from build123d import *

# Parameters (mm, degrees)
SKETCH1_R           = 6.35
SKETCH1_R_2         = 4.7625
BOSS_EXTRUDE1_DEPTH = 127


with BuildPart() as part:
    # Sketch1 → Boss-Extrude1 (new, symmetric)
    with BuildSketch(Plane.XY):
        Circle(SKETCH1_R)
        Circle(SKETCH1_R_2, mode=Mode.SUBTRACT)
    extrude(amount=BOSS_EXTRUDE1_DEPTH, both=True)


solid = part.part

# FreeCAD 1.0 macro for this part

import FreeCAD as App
import Part
import Sketcher
Q = App.Units.Quantity

doc = App.newDocument("Part")
body = doc.addObject("PartDesign::Body", "Body")

# Sketch on XY plane
sketch1 = body.newObject("Sketcher::SketchObject", "Sketch")
sketch1.AttachmentSupport = (doc.getObject("XY_Plane"), [""])
sketch1.MapMode = "FlatFace"
sketch1.addGeometry([
    Part.Circle(App.Vector(0, 0, 0), App.Vector(0, 0, 1), 6.3),
    Part.Circle(App.Vector(0, 0, 0), App.Vector(0, 0, 1), 4.8),
], False)
sketch1.addConstraint([
    Sketcher.Constraint("Coincident", 0, 3, -1, 1),
    Sketcher.Constraint("Coincident", 1, 3, -1, 1),
    Sketcher.Constraint("Diameter", 0, Q("0.5 in")),
    Sketcher.Constraint("Diameter", 1, Q("0.375 in")),
])
pad1 = body.newObject("PartDesign::Pad", "Pad")
pad1.Profile = sketch1
pad1.Length = Q("10 in")
pad1.Midplane = True

doc.recompute()
